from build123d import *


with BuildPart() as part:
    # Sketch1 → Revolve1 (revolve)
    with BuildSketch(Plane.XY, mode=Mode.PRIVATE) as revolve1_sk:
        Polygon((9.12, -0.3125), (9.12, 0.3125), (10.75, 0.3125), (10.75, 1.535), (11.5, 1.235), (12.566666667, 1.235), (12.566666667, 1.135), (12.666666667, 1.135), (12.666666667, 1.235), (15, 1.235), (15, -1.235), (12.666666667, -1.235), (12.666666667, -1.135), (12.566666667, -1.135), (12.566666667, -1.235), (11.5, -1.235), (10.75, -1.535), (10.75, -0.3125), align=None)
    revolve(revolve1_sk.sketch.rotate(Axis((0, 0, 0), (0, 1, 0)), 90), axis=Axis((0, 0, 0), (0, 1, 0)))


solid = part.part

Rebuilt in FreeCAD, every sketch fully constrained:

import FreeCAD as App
import Part
import Sketcher

V = App.Vector

doc = App.newDocument("Part")
body = doc.addObject("PartDesign::Body", "Body")

# Sketch on XY plane
sketch1 = body.newObject("Sketcher::SketchObject", "Sketch")
sketch1.AttachmentSupport = (doc.getObject("XY_Plane"), [""])
sketch1.MapMode = "FlatFace"
sketch1.addGeometry([
    Part.LineSegment(V(9.12, 0.31, 0), V(9.12, -0.31, 0)),  # 0
    Part.LineSegment(V(9.12, -0.31, 0), V(10.75, -0.31, 0)),  # 1
    Part.LineSegment(V(10.75, -0.31, 0), V(10.75, -1.53, 0)),  # 2
    Part.LineSegment(V(10.75, -1.53, 0), V(11.5, -1.24, 0)),  # 3
    Part.LineSegment(V(11.5, -1.24, 0), V(12.57, -1.24, 0)),  # 4
    Part.LineSegment(V(12.57, -1.24, 0), V(12.57, -1.14, 0)),  # 5
    Part.LineSegment(V(12.57, -1.14, 0), V(12.67, -1.14, 0)),  # 6
    Part.LineSegment(V(12.67, -1.14, 0), V(12.67, -1.24, 0)),  # 7
    Part.LineSegment(V(12.67, -1.24, 0), V(15, -1.24, 0)),  # 8
    Part.LineSegment(V(15, -1.24, 0), V(15, 1.24, 0)),  # 9
    Part.LineSegment(V(15, 1.24, 0), V(12.67, 1.24, 0)),  # 10
    Part.LineSegment(V(12.67, 1.24, 0), V(12.67, 1.14, 0)),  # 11
    Part.LineSegment(V(12.67, 1.14, 0), V(12.57, 1.14, 0)),  # 12
    Part.LineSegment(V(12.57, 1.14, 0), V(12.57, 1.24, 0)),  # 13
    Part.LineSegment(V(12.57, 1.24, 0), V(11.5, 1.24, 0)),  # 14
    Part.LineSegment(V(11.5, 1.24, 0), V(10.75, 1.53, 0)),  # 15
    Part.LineSegment(V(10.75, 1.53, 0), V(10.75, 0.31, 0)),  # 16
    Part.LineSegment(V(10.75, 0.31, 0), V(9.12, 0.31, 0)),  # 17
], False)
sketch1.addConstraint([
    Sketcher.Constraint("Coincident", 0, 2, 1, 1),
    Sketcher.Constraint("Coincident", 1, 2, 2, 1),
    Sketcher.Constraint("Coincident", 2, 2, 3, 1),
    Sketcher.Constraint("Coincident", 3, 2, 4, 1),
    Sketcher.Constraint("Coincident", 4, 2, 5, 1),
    Sketcher.Constraint("Coincident", 5, 2, 6, 1),
    Sketcher.Constraint("Coincident", 6, 2, 7, 1),
    Sketcher.Constraint("Coincident", 7, 2, 8, 1),
    Sketcher.Constraint("Coincident", 8, 2, 9, 1),
    Sketcher.Constraint("Coincident", 9, 2, 10, 1),
    Sketcher.Constraint("Coincident", 10, 2, 11, 1),
    Sketcher.Constraint("Coincident", 11, 2, 12, 1),
    Sketcher.Constraint("Coincident", 12, 2, 13, 1),
    Sketcher.Constraint("Coincident", 13, 2, 14, 1),
    Sketcher.Constraint("Coincident", 14, 2, 15, 1),
    Sketcher.Constraint("Coincident", 15, 2, 16, 1),
    Sketcher.Constraint("Coincident", 16, 2, 17, 1),
    Sketcher.Constraint("Coincident", 17, 2, 0, 1),
    Sketcher.Constraint("Vertical", 0),
    Sketcher.Constraint("Horizontal", 1),
    Sketcher.Constraint("Vertical", 2),
    Sketcher.Constraint("Horizontal", 4),
    Sketcher.Constraint("Vertical", 5),
    Sketcher.Constraint("Horizontal", 6),
    Sketcher.Constraint("Vertical", 7),
    Sketcher.Constraint("Horizontal", 8),
    Sketcher.Constraint("Vertical", 9),
    Sketcher.Constraint("Horizontal", 10),
    Sketcher.Constraint("Vertical", 11),
    Sketcher.Constraint("Horizontal", 12),
    Sketcher.Constraint("Vertical", 13),
    Sketcher.Constraint("Horizontal", 14),
    Sketcher.Constraint("Vertical", 16),
    Sketcher.Constraint("Horizontal", 17),
    Sketcher.Constraint("Symmetric", 7, 2, 10, 2, -1),
    Sketcher.Constraint("Symmetric", 5, 2, 12, 2, -1),
    Sketcher.Constraint("Symmetric", 3, 2, 14, 2, -1),
    Sketcher.Constraint("Symmetric", 2, 2, 15, 2, -1),
    Sketcher.Constraint("Horizontal", 4, 2, 7, 2),
    Sketcher.Constraint("Equal", 12, 5),
    Sketcher.Constraint("Equal", 2, 16),
    Sketcher.Constraint("DistanceX", 6, 1, 6, 2, 0.1),
    Sketcher.Constraint("DistanceX", -1, 1, 8, 2, 15.0),
    Sketcher.Constraint("DistanceX", 1, 1, 1, 2, 1.63),
    Sketcher.Constraint("DistanceY", 9, 1, 9, 2, 2.47),
    Sketcher.Constraint("DistanceX", -1, 1, 3, 2, 11.5),
    Sketcher.Constraint("DistanceY", 2, 2, 3, 2, 0.3),
    Sketcher.Constraint("DistanceY", 0, 2, 0, 1, 0.625),
    Sketcher.Constraint("DistanceX", -1, 1, 0, 2, 9.12),
    Sketcher.Constraint("DistanceX", 4, 1, 4, 2, 1.066667),
])
revolution = body.newObject("PartDesign::Revolution", "Revolution")
revolution.Profile = sketch1
revolution.ReferenceAxis = (sketch1, ["V_Axis"])
revolution.Angle = 360

doc.recompute()
